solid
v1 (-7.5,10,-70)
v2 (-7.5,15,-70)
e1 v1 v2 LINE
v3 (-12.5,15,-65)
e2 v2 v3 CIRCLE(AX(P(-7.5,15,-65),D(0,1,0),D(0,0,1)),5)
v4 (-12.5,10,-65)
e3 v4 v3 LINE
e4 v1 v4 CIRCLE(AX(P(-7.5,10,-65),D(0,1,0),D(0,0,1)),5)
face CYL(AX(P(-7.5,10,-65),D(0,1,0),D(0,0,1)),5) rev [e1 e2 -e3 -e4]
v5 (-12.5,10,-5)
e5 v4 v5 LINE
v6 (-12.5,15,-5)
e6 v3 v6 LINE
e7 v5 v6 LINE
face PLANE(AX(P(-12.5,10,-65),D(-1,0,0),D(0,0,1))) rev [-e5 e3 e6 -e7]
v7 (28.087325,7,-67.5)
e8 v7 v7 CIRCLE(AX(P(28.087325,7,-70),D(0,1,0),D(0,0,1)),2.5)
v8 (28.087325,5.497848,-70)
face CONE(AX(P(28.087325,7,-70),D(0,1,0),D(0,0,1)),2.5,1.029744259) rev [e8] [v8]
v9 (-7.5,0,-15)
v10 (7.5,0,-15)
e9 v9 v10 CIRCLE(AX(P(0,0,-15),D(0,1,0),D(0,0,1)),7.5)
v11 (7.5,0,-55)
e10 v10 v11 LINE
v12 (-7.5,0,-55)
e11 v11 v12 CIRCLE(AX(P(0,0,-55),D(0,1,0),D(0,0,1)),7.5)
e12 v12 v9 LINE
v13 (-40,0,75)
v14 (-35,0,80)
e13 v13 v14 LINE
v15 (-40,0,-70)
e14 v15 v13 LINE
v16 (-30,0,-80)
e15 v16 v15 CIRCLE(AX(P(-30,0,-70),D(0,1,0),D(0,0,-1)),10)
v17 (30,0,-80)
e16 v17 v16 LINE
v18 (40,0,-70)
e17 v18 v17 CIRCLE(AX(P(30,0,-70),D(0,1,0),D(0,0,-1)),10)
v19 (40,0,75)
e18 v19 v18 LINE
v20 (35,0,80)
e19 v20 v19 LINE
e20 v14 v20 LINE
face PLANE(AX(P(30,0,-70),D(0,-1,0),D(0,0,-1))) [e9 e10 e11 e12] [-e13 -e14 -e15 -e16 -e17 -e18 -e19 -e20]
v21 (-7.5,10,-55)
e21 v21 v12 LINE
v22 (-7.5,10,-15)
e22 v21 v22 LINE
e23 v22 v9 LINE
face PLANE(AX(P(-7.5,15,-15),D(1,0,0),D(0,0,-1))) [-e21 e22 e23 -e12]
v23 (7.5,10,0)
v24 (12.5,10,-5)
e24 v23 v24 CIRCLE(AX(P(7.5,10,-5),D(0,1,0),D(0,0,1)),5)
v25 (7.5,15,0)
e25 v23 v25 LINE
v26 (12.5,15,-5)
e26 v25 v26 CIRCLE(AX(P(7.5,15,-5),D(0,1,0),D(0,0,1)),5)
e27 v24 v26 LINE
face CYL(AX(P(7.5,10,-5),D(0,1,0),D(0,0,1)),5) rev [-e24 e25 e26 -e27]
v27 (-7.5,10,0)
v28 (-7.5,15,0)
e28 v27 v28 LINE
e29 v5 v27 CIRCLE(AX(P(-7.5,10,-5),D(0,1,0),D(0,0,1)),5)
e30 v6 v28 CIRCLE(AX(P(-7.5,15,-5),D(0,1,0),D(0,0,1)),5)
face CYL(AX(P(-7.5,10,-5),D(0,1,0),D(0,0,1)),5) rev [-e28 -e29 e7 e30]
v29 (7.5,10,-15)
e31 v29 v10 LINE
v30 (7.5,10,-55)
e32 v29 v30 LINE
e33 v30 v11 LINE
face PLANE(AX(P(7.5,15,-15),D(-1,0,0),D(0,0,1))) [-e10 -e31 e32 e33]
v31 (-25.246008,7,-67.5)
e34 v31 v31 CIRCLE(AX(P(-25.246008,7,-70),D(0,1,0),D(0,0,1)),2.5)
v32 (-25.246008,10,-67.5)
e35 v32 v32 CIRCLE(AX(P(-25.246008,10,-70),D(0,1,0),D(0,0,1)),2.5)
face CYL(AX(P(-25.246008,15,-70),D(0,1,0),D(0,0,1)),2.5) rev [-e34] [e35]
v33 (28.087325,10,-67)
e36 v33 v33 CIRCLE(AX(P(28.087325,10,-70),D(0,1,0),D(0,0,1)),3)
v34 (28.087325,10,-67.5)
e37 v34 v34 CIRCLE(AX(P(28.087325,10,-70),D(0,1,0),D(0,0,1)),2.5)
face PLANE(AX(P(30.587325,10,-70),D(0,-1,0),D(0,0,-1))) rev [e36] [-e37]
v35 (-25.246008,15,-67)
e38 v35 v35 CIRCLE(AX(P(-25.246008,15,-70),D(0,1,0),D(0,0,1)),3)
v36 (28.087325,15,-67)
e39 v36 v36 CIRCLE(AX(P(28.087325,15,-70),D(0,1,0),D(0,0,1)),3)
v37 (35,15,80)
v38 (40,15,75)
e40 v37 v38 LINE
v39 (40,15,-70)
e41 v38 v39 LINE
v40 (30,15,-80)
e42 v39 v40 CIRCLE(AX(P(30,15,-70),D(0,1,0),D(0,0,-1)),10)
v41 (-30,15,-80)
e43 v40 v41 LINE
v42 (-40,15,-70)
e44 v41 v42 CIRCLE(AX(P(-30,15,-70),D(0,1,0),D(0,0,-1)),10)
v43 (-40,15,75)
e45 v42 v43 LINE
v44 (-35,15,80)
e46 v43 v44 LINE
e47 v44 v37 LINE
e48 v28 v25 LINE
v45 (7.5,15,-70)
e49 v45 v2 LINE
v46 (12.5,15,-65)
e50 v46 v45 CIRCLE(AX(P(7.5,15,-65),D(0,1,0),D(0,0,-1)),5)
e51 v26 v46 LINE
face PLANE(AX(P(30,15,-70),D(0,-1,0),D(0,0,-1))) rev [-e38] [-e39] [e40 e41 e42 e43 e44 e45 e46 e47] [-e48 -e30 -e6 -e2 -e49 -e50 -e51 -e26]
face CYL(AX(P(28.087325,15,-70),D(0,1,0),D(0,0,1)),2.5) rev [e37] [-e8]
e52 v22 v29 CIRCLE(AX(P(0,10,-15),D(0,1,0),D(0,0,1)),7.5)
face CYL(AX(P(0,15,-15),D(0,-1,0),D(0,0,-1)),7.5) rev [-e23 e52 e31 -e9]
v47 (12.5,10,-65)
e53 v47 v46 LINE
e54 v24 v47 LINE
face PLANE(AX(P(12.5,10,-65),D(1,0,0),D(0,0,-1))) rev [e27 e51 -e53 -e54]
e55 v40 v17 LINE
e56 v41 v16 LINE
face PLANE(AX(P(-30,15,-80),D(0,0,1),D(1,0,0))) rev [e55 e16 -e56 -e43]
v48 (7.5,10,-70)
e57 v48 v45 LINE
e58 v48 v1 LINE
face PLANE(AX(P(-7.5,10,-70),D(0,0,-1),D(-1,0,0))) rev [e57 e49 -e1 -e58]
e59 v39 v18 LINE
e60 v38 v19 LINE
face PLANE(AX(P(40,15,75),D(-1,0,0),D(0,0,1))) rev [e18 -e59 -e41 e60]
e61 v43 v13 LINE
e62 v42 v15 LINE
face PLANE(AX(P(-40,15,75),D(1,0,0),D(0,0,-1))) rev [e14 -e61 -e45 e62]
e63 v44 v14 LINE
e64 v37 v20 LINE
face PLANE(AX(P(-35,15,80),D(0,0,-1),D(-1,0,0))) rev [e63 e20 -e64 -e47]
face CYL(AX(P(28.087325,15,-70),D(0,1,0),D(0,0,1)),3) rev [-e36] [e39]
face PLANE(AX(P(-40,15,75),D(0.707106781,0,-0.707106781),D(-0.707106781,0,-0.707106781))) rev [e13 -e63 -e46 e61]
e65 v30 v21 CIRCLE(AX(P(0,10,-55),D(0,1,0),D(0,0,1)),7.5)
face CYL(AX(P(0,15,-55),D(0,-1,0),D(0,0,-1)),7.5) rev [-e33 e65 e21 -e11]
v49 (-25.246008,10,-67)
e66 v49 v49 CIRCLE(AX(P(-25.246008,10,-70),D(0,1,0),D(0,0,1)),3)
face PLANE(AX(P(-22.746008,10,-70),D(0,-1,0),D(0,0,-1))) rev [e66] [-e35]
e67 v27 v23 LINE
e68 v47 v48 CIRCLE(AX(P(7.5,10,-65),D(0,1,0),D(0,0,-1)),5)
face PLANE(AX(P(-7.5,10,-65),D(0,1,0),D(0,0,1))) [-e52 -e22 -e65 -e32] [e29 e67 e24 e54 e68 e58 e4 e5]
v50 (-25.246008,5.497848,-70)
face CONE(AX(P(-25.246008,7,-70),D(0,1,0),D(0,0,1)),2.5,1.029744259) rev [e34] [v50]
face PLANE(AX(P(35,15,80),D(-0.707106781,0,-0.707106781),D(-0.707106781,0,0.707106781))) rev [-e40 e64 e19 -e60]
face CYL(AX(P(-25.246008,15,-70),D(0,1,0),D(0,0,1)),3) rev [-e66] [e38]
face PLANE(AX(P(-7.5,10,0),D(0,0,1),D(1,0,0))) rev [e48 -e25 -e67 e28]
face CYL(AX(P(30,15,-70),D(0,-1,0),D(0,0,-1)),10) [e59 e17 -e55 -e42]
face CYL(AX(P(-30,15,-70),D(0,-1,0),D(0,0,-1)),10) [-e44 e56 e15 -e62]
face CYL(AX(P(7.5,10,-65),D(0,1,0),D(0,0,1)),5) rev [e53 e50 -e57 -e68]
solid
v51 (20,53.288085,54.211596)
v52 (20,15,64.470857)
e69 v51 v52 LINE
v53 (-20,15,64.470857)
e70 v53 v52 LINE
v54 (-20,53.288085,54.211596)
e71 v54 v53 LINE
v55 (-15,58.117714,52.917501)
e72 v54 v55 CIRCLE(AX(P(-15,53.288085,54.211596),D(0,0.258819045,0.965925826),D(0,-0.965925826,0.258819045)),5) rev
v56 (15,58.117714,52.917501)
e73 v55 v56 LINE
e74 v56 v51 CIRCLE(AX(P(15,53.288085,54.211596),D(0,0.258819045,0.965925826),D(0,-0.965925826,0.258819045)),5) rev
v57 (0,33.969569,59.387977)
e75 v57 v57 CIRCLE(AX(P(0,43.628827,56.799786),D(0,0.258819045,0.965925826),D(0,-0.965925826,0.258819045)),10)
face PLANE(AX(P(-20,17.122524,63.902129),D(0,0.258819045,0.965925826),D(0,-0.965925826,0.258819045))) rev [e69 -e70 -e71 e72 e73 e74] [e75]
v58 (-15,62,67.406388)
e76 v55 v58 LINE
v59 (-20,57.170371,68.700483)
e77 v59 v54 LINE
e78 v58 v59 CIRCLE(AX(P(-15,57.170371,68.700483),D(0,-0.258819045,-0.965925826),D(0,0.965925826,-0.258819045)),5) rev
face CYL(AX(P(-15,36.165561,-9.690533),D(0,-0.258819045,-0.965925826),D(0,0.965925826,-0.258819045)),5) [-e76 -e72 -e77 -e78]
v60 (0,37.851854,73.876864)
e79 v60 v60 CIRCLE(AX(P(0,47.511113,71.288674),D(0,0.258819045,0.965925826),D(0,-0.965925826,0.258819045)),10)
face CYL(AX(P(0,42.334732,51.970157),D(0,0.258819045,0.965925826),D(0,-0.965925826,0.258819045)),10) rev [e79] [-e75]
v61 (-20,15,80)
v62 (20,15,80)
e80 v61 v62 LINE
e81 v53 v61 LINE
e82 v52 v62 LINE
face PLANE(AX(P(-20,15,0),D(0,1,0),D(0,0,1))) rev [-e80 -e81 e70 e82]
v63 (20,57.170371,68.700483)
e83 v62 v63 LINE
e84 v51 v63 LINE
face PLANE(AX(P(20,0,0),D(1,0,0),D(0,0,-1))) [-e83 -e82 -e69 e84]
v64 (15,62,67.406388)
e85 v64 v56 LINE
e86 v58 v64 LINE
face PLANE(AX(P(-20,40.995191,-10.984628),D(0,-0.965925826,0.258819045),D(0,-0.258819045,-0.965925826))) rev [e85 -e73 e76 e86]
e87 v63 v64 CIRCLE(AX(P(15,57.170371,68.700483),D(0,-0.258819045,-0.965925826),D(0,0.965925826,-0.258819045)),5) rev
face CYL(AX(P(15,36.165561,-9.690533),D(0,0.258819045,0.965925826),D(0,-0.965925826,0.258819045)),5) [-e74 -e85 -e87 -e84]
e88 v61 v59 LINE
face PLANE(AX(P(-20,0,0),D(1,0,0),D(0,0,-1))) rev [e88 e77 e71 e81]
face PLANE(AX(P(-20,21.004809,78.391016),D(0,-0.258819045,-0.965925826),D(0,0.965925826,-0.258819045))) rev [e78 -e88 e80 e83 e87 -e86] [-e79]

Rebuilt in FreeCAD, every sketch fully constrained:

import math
import FreeCAD as App
import Part
import Sketcher
from FreeCAD import Vector
Q = App.Units.Quantity


def edges_at(feature, points):
    """Names of the edges that pass closest to the given points."""
    edges = feature.Shape.Edges
    near = lambda p: min(range(len(edges)), key=lambda i: edges[i].distToShape(Part.Vertex(*p))[0])
    return sorted({f"Edge{near(p) + 1}" for p in points})

doc = App.newDocument("Part")
body = doc.addObject("PartDesign::Body", "Body")

sketch1 = body.newObject("Sketcher::SketchObject", "Sketch")
sketch1.AttachmentSupport = (doc.getObject("XZ_Plane"), [""])
sketch1.MapMode = "FlatFace"
sketch1.addGeometry([
    Part.LineSegment(Vector(-40, 75, 0), Vector(-35, 80, 0)),
    Part.LineSegment(Vector(-35, 80, 0), Vector(35, 80, 0)),
    Part.LineSegment(Vector(35, 80, 0), Vector(40, 75, 0)),
    Part.LineSegment(Vector(40, 75, 0), Vector(40, -70, 0)),
    Part.ArcOfCircle(Part.Circle(Vector(30, -70, 0), Vector(0, 0, 1), 10), math.radians(-90), math.radians(0)),
    Part.LineSegment(Vector(30, -80, 0), Vector(-30, -80, 0)),
    Part.ArcOfCircle(Part.Circle(Vector(-30, -70, 0), Vector(0, 0, 1), 10), math.radians(180), math.radians(270)),
    Part.LineSegment(Vector(-40, -70, 0), Vector(-40, 75, 0)),
    Part.ArcOfCircle(Part.Circle(Vector(0, -15, 0), Vector(0, 0, 1), 8), math.radians(0), math.radians(180)),
    Part.LineSegment(Vector(-8, -15, 0), Vector(-8, -55, 0)),
    Part.ArcOfCircle(Part.Circle(Vector(0, -55, 0), Vector(0, 0, 1), 8), math.radians(180), math.radians(360)),
    Part.LineSegment(Vector(8, -55, 0), Vector(8, -15, 0)),
], False)
sketch1.addConstraint([
    Sketcher.Constraint("Coincident", 0, 2, 1, 1),
    Sketcher.Constraint("Coincident", 1, 2, 2, 1),
    Sketcher.Constraint("Coincident", 2, 2, 3, 1),
    Sketcher.Constraint("Tangent", 3, 2, 4, 2),
    Sketcher.Constraint("Tangent", 4, 1, 5, 1),
    Sketcher.Constraint("Tangent", 5, 2, 6, 2),
    Sketcher.Constraint("Tangent", 6, 1, 7, 1),
    Sketcher.Constraint("Coincident", 7, 2, 0, 1),
    Sketcher.Constraint("Tangent", 8, 2, 9, 1),
    Sketcher.Constraint("Tangent", 9, 2, 10, 1),
    Sketcher.Constraint("Tangent", 10, 2, 11, 1),
    Sketcher.Constraint("Tangent", 11, 2, 8, 1),
    Sketcher.Constraint("Horizontal", 1),
    Sketcher.Constraint("Vertical", 3),
    Sketcher.Constraint("Horizontal", 5),
    Sketcher.Constraint("Vertical", 7),
    Sketcher.Constraint("Vertical", 9),
    Sketcher.Constraint("Vertical", 11),
    Sketcher.Constraint("Equal", 4, 6),
    Sketcher.Constraint("Symmetric", 2, 2, 7, 2, -2),
    Sketcher.Constraint("PointOnObject", 8, 3, -2),
    Sketcher.Constraint("Perpendicular", 0, 2),
    Sketcher.Constraint("Equal", 0, 2),
    Sketcher.Constraint("Radius", 4, Q("10 mm")),
    Sketcher.Constraint("Radius", 8, Q("7.5 mm")),
    Sketcher.Constraint("DistanceX", 1, 1, 1, 2, Q("70 mm")),
    Sketcher.Constraint("DistanceX", 5, 2, 5, 1, Q("60 mm")),
    Sketcher.Constraint("DistanceY", 3, 2, 3, 1, Q("145 mm")),
    Sketcher.Constraint("DistanceY", 9, 2, 9, 1, Q("40 mm")),
    Sketcher.Constraint("DistanceY", 4, 3, -1, 1, Q("70 mm")),
    Sketcher.Constraint("DistanceY", 8, 3, -1, 1, Q("15 mm")),
])
pad1 = body.newObject("PartDesign::Pad", "Pad")
pad1.Profile = sketch1
pad1.Length = 15
pad1.Reversed = True

sketch2 = body.newObject("Sketcher::SketchObject", "Sketch001")
sketch2.AttachmentSupport = (doc.getObject("XZ_Plane"), [""])
sketch2.MapMode = "FlatFace"
sketch2.AttachmentOffset = App.Placement(Vector(0, 0, -15), App.Rotation())
sketch2.addGeometry([
    Part.LineSegment(Vector(8, -70, 0), Vector(-8, -70, 0)),
    Part.ArcOfCircle(Part.Circle(Vector(-8, -65, 0), Vector(0, 0, 1), 5), math.radians(180), math.radians(270)),
    Part.LineSegment(Vector(-12, -65, 0), Vector(-12, -5, 0)),
    Part.ArcOfCircle(Part.Circle(Vector(-8, -5, 0), Vector(0, 0, 1), 5), math.radians(90), math.radians(180)),
    Part.LineSegment(Vector(-8, 0, 0), Vector(8, 0, 0)),
    Part.ArcOfCircle(Part.Circle(Vector(8, -5, 0), Vector(0, 0, 1), 5), math.radians(0), math.radians(90)),
    Part.LineSegment(Vector(12, -5, 0), Vector(12, -65, 0)),
    Part.ArcOfCircle(Part.Circle(Vector(8, -65, 0), Vector(0, 0, 1), 5), math.radians(-90), math.radians(0)),
], False)
sketch2.addConstraint([
    Sketcher.Constraint("Tangent", 0, 2, 1, 2),
    Sketcher.Constraint("Tangent", 1, 1, 2, 1),
    Sketcher.Constraint("Tangent", 2, 2, 3, 2),
    Sketcher.Constraint("Tangent", 3, 1, 4, 1),
    Sketcher.Constraint("Tangent", 4, 2, 5, 2),
    Sketcher.Constraint("Tangent", 5, 1, 6, 1),
    Sketcher.Constraint("Tangent", 6, 2, 7, 2),
    Sketcher.Constraint("Tangent", 7, 1, 0, 1),
    Sketcher.Constraint("Horizontal", 0),
    Sketcher.Constraint("Vertical", 2),
    Sketcher.Constraint("Horizontal", 4),
    Sketcher.Constraint("Vertical", 6),
    Sketcher.Constraint("Equal", 1, 3),
    Sketcher.Constraint("Equal", 3, 5),
    Sketcher.Constraint("Equal", 5, 7),
    Sketcher.Constraint("Symmetric", 3, 1, 4, 2, -1, 1),
    Sketcher.Constraint("Radius", 1, Q("5 mm")),
    Sketcher.Constraint("DistanceX", 0, 2, 0, 1, Q("15 mm")),
    Sketcher.Constraint("DistanceY", 2, 1, 2, 2, Q("60 mm")),
])
pocket1 = body.newObject("PartDesign::Pocket", "Pocket")
pocket1.Profile = sketch2
pocket1.Length = 5
pocket1.Reversed = True

sketch3 = body.newObject("Sketcher::SketchObject", "Sketch002")
sketch3.AttachmentSupport = (doc.getObject("YZ_Plane"), [""])
sketch3.MapMode = "FlatFace"
sketch3.AttachmentOffset = App.Placement(Vector(0, 0, -25.246008), App.Rotation())
sketch3.addGeometry([
    Part.LineSegment(Vector(5.5, -70, 0), Vector(15, -70, 0)),
    Part.LineSegment(Vector(15, -70, 0), Vector(15, -67, 0)),
    Part.LineSegment(Vector(15, -67, 0), Vector(10, -67, 0)),
    Part.LineSegment(Vector(10, -67, 0), Vector(10, -67.5, 0)),
    Part.LineSegment(Vector(10, -67.5, 0), Vector(7, -67.5, 0)),
    Part.LineSegment(Vector(7, -67.5, 0), Vector(5.5, -70, 0)),
], False)
sketch3.addGeometry(Part.LineSegment(Vector(15, -70, 0), Vector(5.5, -70, 0)), True)
sketch3.addConstraint([
    Sketcher.Constraint("Coincident", 0, 2, 1, 1),
    Sketcher.Constraint("Coincident", 1, 2, 2, 1),
    Sketcher.Constraint("Coincident", 2, 2, 3, 1),
    Sketcher.Constraint("Coincident", 3, 2, 4, 1),
    Sketcher.Constraint("Coincident", 4, 2, 5, 1),
    Sketcher.Constraint("Coincident", 5, 2, 0, 1),
    Sketcher.Constraint("Horizontal", 0),
    Sketcher.Constraint("Vertical", 1),
    Sketcher.Constraint("Horizontal", 2),
    Sketcher.Constraint("Vertical", 3),
    Sketcher.Constraint("Horizontal", 4),
    Sketcher.Constraint("Horizontal", 6),
    Sketcher.Constraint("Coincident", 6, 1, 0, 2),
    Sketcher.Constraint("Equal", 0, 6),
    Sketcher.Constraint("Equal", 4, 1),
    Sketcher.Constraint("DistanceX", 2, 2, 2, 1, Q("5 mm")),
    Sketcher.Constraint("DistanceX", 4, 2, 4, 1, Q("3 mm")),
    Sketcher.Constraint("Angle", 5, Q("-121 deg")),
    Sketcher.Constraint("DistanceY", 3, 2, 3, 1, Q("0.5 mm")),
    Sketcher.Constraint("DistanceX", -1, 1, 0, 2, Q("15 mm")),
    Sketcher.Constraint("DistanceY", 0, 2, -1, 1, Q("70 mm")),
])
groove = body.newObject("PartDesign::Groove", "Groove")
groove.Profile = sketch3
groove.ReferenceAxis = (sketch3, ["Axis0"])
groove.Angle = 360
doc.recompute()

linearpattern = body.newObject("PartDesign::LinearPattern", "LinearPattern")
linearpattern.Originals = [groove]
linearpattern.Direction = (doc.getObject("X_Axis"), [""])
linearpattern.Mode = "offset"
linearpattern.Offset = 53.333333
linearpattern.Occurrences = 2
body.Tip = linearpattern
body2 = doc.addObject("PartDesign::Body", "Body001")

sketch4 = body2.newObject("Sketcher::SketchObject", "Sketch003")
sketch4.AttachmentSupport = (doc.getObject("YZ_Plane001"), [""])
sketch4.MapMode = "FlatFace"
sketch4.addGeometry([
    Part.LineSegment(Vector(15, 80, 0), Vector(15, 64, 0)),
    Part.LineSegment(Vector(15, 64, 0), Vector(58, 53, 0)),
    Part.LineSegment(Vector(58, 53, 0), Vector(62, 67, 0)),
    Part.LineSegment(Vector(62, 67, 0), Vector(15, 80, 0)),
], False)
sketch4.addConstraint([
    Sketcher.Constraint("Coincident", 0, 2, 1, 1),
    Sketcher.Constraint("Coincident", 1, 2, 2, 1),
    Sketcher.Constraint("Coincident", 2, 2, 3, 1),
    Sketcher.Constraint("Coincident", 3, 2, 0, 1),
    Sketcher.Constraint("Vertical", 0),
    Sketcher.Constraint("Perpendicular", 1, 2),
    Sketcher.Constraint("Perpendicular", 2, 3),
    Sketcher.Constraint("Angle", 1, Q("-15 deg")),
    Sketcher.Constraint("Distance", 2, Q("15 mm")),
    Sketcher.Constraint("DistanceX", -1, 1, 0, 2, Q("15 mm")),
    Sketcher.Constraint("DistanceX", -1, 1, 2, 2, Q("62 mm")),
    Sketcher.Constraint("DistanceY", -1, 1, 3, 2, Q("80 mm")),
])
pad2 = body2.newObject("PartDesign::Pad", "Pad001")
pad2.Profile = sketch4
pad2.Type = "TwoLengths"
pad2.Length = 20
pad2.Length2 = 20

sketch5 = body2.newObject("Sketcher::SketchObject", "Sketch004")
sketch5.Placement = App.Placement(Vector(0, 21.004809, 78.391016), App.Rotation(Vector(1, 0, 0), Vector(0, 0.965925826, -0.258819045), Vector(0, 0.258819045, 0.965925826), "ZXY"))
sketch5.addGeometry(Part.Circle(Vector(0, 27, 0), Vector(0, 0, 1), 10), False)
sketch5.addConstraint([
    Sketcher.Constraint("PointOnObject", 0, 3, -2),
    Sketcher.Constraint("Diameter", 0, Q("20 mm")),
    Sketcher.Constraint("DistanceY", -1, 1, 0, 3, Q("27.441344 mm")),
])
pocket2 = body2.newObject("PartDesign::Pocket", "Pocket001")
pocket2.Profile = sketch5
pocket2.Length = 20
doc.recompute()

fillet = body2.newObject("PartDesign::Fillet", "Fillet")
fillet.Base = (pocket2, edges_at(pocket2, [(20, 60.059, 60.162), (-20, 60.059, 60.162)]))
fillet.Radius = 5

doc.recompute()
